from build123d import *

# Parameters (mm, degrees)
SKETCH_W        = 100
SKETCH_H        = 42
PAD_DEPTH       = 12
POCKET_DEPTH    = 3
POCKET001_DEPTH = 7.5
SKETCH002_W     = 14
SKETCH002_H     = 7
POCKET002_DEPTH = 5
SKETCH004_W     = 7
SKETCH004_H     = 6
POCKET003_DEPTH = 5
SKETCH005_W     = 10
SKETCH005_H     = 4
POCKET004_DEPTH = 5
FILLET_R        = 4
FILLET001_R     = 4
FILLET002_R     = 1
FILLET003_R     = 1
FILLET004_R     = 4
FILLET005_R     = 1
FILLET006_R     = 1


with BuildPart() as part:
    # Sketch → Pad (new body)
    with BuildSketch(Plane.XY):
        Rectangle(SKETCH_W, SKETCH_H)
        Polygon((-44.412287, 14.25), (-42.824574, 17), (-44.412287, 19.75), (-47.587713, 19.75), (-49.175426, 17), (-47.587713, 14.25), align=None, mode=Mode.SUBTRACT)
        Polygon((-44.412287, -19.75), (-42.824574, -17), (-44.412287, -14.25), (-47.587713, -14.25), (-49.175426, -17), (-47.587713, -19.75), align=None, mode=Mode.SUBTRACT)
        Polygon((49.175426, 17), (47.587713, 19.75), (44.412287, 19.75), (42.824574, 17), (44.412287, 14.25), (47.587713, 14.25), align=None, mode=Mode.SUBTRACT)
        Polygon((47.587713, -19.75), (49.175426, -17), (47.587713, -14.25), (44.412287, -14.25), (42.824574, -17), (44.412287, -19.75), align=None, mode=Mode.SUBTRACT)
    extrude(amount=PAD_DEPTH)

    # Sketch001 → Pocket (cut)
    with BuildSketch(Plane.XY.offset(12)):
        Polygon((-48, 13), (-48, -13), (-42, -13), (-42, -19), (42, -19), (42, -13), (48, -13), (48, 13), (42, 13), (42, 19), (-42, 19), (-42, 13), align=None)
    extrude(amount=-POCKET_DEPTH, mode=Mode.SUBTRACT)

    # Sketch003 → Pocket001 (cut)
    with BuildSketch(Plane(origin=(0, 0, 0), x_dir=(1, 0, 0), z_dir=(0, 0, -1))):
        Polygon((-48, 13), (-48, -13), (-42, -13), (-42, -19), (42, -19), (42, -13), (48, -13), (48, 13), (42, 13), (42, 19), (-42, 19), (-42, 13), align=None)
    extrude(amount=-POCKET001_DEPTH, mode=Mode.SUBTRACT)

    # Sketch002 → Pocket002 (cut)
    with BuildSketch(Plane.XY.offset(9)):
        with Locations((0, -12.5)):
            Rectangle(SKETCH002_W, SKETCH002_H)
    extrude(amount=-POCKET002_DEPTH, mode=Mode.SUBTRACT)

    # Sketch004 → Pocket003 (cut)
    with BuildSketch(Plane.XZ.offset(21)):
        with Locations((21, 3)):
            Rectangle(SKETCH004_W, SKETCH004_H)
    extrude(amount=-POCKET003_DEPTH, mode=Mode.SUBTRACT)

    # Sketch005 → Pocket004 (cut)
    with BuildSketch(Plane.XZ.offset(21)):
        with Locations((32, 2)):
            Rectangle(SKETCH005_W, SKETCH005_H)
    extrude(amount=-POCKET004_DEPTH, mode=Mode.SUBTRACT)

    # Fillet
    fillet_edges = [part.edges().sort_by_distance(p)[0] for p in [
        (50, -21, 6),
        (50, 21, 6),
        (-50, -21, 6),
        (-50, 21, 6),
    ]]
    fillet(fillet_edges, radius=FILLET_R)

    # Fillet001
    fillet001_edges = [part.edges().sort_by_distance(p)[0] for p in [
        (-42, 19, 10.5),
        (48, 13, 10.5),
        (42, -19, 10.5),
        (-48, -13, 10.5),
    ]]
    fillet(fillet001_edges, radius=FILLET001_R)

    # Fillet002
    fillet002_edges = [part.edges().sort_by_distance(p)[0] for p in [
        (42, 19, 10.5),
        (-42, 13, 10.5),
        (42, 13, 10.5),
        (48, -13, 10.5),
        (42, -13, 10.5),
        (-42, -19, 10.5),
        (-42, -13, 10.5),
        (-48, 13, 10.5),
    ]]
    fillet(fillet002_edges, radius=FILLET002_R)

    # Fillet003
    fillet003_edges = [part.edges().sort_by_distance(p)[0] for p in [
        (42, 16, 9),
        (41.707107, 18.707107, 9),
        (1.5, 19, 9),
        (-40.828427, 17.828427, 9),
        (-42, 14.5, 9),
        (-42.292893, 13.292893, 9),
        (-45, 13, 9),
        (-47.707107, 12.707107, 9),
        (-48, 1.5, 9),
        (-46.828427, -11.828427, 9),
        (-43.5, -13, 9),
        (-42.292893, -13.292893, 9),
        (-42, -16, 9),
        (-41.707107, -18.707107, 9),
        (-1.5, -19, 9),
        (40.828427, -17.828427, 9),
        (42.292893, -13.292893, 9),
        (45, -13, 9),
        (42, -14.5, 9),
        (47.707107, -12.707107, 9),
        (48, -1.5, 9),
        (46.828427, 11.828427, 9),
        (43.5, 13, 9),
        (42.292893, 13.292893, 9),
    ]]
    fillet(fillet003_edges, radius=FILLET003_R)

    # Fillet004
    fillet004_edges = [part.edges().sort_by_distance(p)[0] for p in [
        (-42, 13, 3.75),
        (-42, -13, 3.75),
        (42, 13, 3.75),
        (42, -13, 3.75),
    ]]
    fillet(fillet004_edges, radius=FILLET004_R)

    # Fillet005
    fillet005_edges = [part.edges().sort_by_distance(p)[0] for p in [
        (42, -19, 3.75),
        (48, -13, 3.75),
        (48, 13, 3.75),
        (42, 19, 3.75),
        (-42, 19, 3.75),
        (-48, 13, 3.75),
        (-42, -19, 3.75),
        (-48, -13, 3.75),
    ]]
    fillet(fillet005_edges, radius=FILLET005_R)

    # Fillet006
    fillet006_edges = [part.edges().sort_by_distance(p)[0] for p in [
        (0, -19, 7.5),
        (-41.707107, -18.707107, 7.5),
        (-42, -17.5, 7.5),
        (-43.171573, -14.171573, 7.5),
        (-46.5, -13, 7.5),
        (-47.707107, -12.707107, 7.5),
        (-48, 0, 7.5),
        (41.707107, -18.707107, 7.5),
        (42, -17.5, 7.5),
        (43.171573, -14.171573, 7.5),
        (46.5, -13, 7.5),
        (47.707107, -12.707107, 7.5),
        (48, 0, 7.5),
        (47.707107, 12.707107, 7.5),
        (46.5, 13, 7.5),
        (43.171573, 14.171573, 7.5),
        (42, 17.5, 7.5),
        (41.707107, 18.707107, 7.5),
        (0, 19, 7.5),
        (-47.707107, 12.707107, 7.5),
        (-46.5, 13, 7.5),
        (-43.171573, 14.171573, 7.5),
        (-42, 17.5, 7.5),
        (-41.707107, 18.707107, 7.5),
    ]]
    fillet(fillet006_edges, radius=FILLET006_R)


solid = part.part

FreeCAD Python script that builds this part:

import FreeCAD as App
import Part
import Sketcher
Q = App.Units.Quantity


def edges_at(feature, points):
    """Names of the edges that pass closest to the given points."""
    edges = feature.Shape.Edges
    near = lambda p: min(range(len(edges)), key=lambda i: edges[i].distToShape(Part.Vertex(*p))[0])
    return sorted({f"Edge{near(p) + 1}" for p in points})


def add_polygon(sketch, points):
    """Adds a closed chain of lines whose ends are joined by coincident constraints."""
    first, n = sketch.GeometryCount, len(points)
    for a, b in zip(points, points[1:] + points[:1]):
        sketch.addGeometry(Part.LineSegment(App.Vector(*a, 0), App.Vector(*b, 0)), False)
    for i in range(n):
        sketch.addConstraint(Sketcher.Constraint("Coincident", first + i, 2, first + (i + 1) % n, 1))

doc = App.newDocument("Part")
body = doc.addObject("PartDesign::Body", "Body")

# Sketch on XY plane
sketch1 = doc.addObject("Sketcher::SketchObject", "Sketch")
body.addObject(sketch1)
sketch1.AttachmentSupport = (doc.XY_Plane, [""])
sketch1.MapMode = "FlatFace"
add_polygon(sketch1, [(-50, 21), (-50, -21), (50, -21), (50, 21)])  # lines 0-3
add_polygon(sketch1, [(-42.8, -17), (-44.4, -19.8), (-47.6, -19.8), (-49.2, -17), (-47.6, -14.2), (-44.4, -14.2)])  # lines 4-9
add_polygon(sketch1, [(49.2, -17), (47.6, -19.8), (44.4, -19.8), (42.8, -17), (44.4, -14.2), (47.6, -14.2)])  # lines 10-15
add_polygon(sketch1, [(-42.8, 17), (-44.4, 14.2), (-47.6, 14.2), (-49.2, 17), (-47.6, 19.8), (-44.4, 19.8)])  # lines 16-21
add_polygon(sketch1, [(47.6, 19.8), (49.2, 17), (47.6, 14.2), (44.4, 14.2), (42.8, 17), (44.4, 19.8)])  # lines 22-27
sketch1.addConstraint([
    Sketcher.Constraint("Vertical", 0),
    Sketcher.Constraint("Horizontal", 1),
    Sketcher.Constraint("Vertical", 2),
    Sketcher.Constraint("Horizontal", 3),
    Sketcher.Constraint("Horizontal", 5),
    Sketcher.Constraint("Horizontal", 8),
    Sketcher.Constraint("Horizontal", 11),
    Sketcher.Constraint("Horizontal", 14),
    Sketcher.Constraint("Horizontal", 17),
    Sketcher.Constraint("Horizontal", 20),
    Sketcher.Constraint("Horizontal", 24),
    Sketcher.Constraint("Horizontal", 27),
    Sketcher.Constraint("Symmetric", 0, 2, 2, 2, -1, 1),
    Sketcher.Constraint("Symmetric", 13, 2, 16, 2, -1, 1),
    Sketcher.Constraint("Symmetric", 15, 2, 18, 2, -1, 1),
    Sketcher.Constraint("Symmetric", 10, 2, 19, 2, -1, 1),
    Sketcher.Constraint("Symmetric", 12, 2, 21, 2, -1, 1),
    Sketcher.Constraint("Symmetric", 6, 2, 22, 2, -1, 1),
    Sketcher.Constraint("Symmetric", 7, 2, 23, 2, -1, 1),
    Sketcher.Constraint("Symmetric", 9, 2, 25, 2, -1, 1),
    Sketcher.Constraint("Symmetric", 4, 2, 26, 2, -1, 1),
    Sketcher.Constraint("Symmetric", 5, 2, 10, 2, -2),
    Sketcher.Constraint("Symmetric", 9, 2, 12, 2, -2),
    Sketcher.Constraint("Symmetric", 8, 2, 13, 2, -2),
    Sketcher.Constraint("Symmetric", 6, 2, 15, 2, -2),
    Sketcher.Constraint("Parallel", 4, 7),
    Sketcher.Constraint("Parallel", 6, 9),
    Sketcher.Constraint("Parallel", 7, 10),
    Sketcher.Constraint("Parallel", 9, 12),
    Sketcher.Constraint("Parallel", 12, 15),
    Sketcher.Constraint("Parallel", 15, 18),
    Sketcher.Constraint("Parallel", 18, 21),
    Sketcher.Constraint("Parallel", 21, 22),
    Sketcher.Constraint("Parallel", 22, 25),
    Sketcher.Constraint("Horizontal", 6, 2, 9, 2),
    Sketcher.Constraint("Vertical", 5, 2, 7, 2),
    Sketcher.Constraint("DistanceX", 1, 1, 1, 2, Q("100 mm")),
    Sketcher.Constraint("DistanceY", 0, 2, 0, 1, Q("42 mm")),
    Sketcher.Constraint("Angle", 4, Q("-119.999996 deg")),
    Sketcher.Constraint("DistanceY", 6, 2, -1, 1, Q("17 mm")),
    Sketcher.Constraint("DistanceX", 4, 2, 10, 2, Q("92 mm")),
    Sketcher.Constraint("DistanceY", 5, 2, 7, 2, Q("5.5 mm")),
    Sketcher.Constraint("DistanceX", 5, 2, 5, 1, Q("3.175426 mm")),
])
pad1 = doc.addObject("PartDesign::Pad", "Pad")
body.addObject(pad1)
pad1.Profile = sketch1
pad1.Length = 12

# Sketch on XY plane
sketch2 = doc.addObject("Sketcher::SketchObject", "Sketch001")
body.addObject(sketch2)
sketch2.AttachmentSupport = (doc.XY_Plane, [""])
sketch2.MapMode = "FlatFace"
sketch2.AttachmentOffset = App.Placement(App.Vector(0, 0, 12), App.Rotation())
add_polygon(sketch2, [(-48, 13), (-48, -13), (-42, -13), (-42, -19), (42, -19), (42, -13), (48, -13), (48, 13), (42, 13), (42, 19), (-42, 19), (-42, 13)])  # lines 0-11
sketch2.addConstraint([
    Sketcher.Constraint("Vertical", 0),
    Sketcher.Constraint("Horizontal", 1),
    Sketcher.Constraint("Vertical", 2),
    Sketcher.Constraint("Horizontal", 3),
    Sketcher.Constraint("Vertical", 4),
    Sketcher.Constraint("Horizontal", 5),
    Sketcher.Constraint("Vertical", 6),
    Sketcher.Constraint("Horizontal", 7),
    Sketcher.Constraint("Vertical", 8),
    Sketcher.Constraint("Horizontal", 9),
    Sketcher.Constraint("Vertical", 10),
    Sketcher.Constraint("Horizontal", 11),
    Sketcher.Constraint("Symmetric", 0, 2, 6, 2, -1, 1),
    Sketcher.Constraint("Symmetric", 2, 2, 8, 2, -1, 1),
    Sketcher.Constraint("Symmetric", 4, 2, 10, 2, -1, 1),
    Sketcher.Constraint("Symmetric", 1, 2, 4, 2, -2),
    Sketcher.Constraint("Equal", 11, 2),
    Sketcher.Constraint("DistanceX", 1, 1, 1, 2, Q("6 mm")),
    Sketcher.Constraint("DistanceX", 3, 1, 3, 2, Q("84 mm")),
    Sketcher.Constraint("DistanceY", 0, 2, 0, 1, Q("26 mm")),
])
pocket1 = doc.addObject("PartDesign::Pocket", "Pocket")
body.addObject(pocket1)
pocket1.Profile = sketch2
pocket1.Length = 3

# Sketch on XY plane
sketch3 = doc.addObject("Sketcher::SketchObject", "Sketch002")
body.addObject(sketch3)
sketch3.AttachmentSupport = (doc.XY_Plane, [""])
sketch3.MapMode = "FlatFace"
add_polygon(sketch3, [(-48, -13), (-48, 13), (-42, 13), (-42, 19), (42, 19), (42, 13), (48, 13), (48, -13), (42, -13), (42, -19), (-42, -19), (-42, -13)])  # lines 0-11
sketch3.addConstraint([
    Sketcher.Constraint("Vertical", 0),
    Sketcher.Constraint("Horizontal", 1),
    Sketcher.Constraint("Vertical", 2),
    Sketcher.Constraint("Horizontal", 3),
    Sketcher.Constraint("Vertical", 4),
    Sketcher.Constraint("Horizontal", 5),
    Sketcher.Constraint("Vertical", 6),
    Sketcher.Constraint("Horizontal", 7),
    Sketcher.Constraint("Vertical", 8),
    Sketcher.Constraint("Horizontal", 9),
    Sketcher.Constraint("Vertical", 10),
    Sketcher.Constraint("Horizontal", 11),
    Sketcher.Constraint("Symmetric", 0, 2, 6, 2, -1, 1),
    Sketcher.Constraint("Symmetric", 2, 2, 8, 2, -1, 1),
    Sketcher.Constraint("Symmetric", 4, 2, 10, 2, -1, 1),
    Sketcher.Constraint("Symmetric", 1, 2, 4, 2, -2),
    Sketcher.Constraint("Equal", 11, 2),
    Sketcher.Constraint("DistanceX", 1, 1, 1, 2, Q("6 mm")),
    Sketcher.Constraint("DistanceX", 3, 1, 3, 2, Q("84 mm")),
    Sketcher.Constraint("DistanceY", 0, 1, 0, 2, Q("26 mm")),
])
pocket2 = doc.addObject("PartDesign::Pocket", "Pocket001")
body.addObject(pocket2)
pocket2.Profile = sketch3
pocket2.Length = 7.5
pocket2.Reversed = True

# Sketch on XY plane
sketch4 = doc.addObject("Sketcher::SketchObject", "Sketch003")
body.addObject(sketch4)
sketch4.AttachmentSupport = (doc.XY_Plane, [""])
sketch4.MapMode = "FlatFace"
sketch4.AttachmentOffset = App.Placement(App.Vector(0, 0, 9), App.Rotation())
add_polygon(sketch4, [(-7, -9), (-7, -16), (7, -16), (7, -9)])  # lines 0-3
sketch4.addConstraint([
    Sketcher.Constraint("Vertical", 0),
    Sketcher.Constraint("Horizontal", 1),
    Sketcher.Constraint("Vertical", 2),
    Sketcher.Constraint("Horizontal", 3),
    Sketcher.Constraint("DistanceX", 1, 1, 1, 2, Q("14 mm")),
    Sketcher.Constraint("DistanceY", 0, 2, 0, 1, Q("7 mm")),
    Sketcher.Constraint("DistanceX", 0, 2, -1, 1, Q("7 mm")),
    Sketcher.Constraint("DistanceY", 0, 2, -1, 1, Q("16 mm")),
])
pocket3 = doc.addObject("PartDesign::Pocket", "Pocket002")
body.addObject(pocket3)
pocket3.Profile = sketch4
pocket3.Length = 5

# Sketch on XZ plane
sketch5 = doc.addObject("Sketcher::SketchObject", "Sketch004")
body.addObject(sketch5)
sketch5.AttachmentSupport = (doc.XZ_Plane, [""])
sketch5.MapMode = "FlatFace"
sketch5.AttachmentOffset = App.Placement(App.Vector(0, 0, 21), App.Rotation())
add_polygon(sketch5, [(18, 6), (18, 0), (24, 0), (24, 6)])  # lines 0-3
sketch5.addConstraint([
    Sketcher.Constraint("Vertical", 0),
    Sketcher.Constraint("Horizontal", 1),
    Sketcher.Constraint("Vertical", 2),
    Sketcher.Constraint("Horizontal", 3),
    Sketcher.Constraint("PointOnObject", 0, 2, -1),
    Sketcher.Constraint("DistanceX", 1, 1, 1, 2, Q("7 mm")),
    Sketcher.Constraint("DistanceY", 0, 2, 0, 1, Q("6 mm")),
    Sketcher.Constraint("DistanceX", -1, 1, 0, 2, Q("17.5 mm")),
])
pocket4 = doc.addObject("PartDesign::Pocket", "Pocket003")
body.addObject(pocket4)
pocket4.Profile = sketch5
pocket4.Length = 5

# Sketch on XZ plane
sketch6 = doc.addObject("Sketcher::SketchObject", "Sketch005")
body.addObject(sketch6)
sketch6.AttachmentSupport = (doc.XZ_Plane, [""])
sketch6.MapMode = "FlatFace"
sketch6.AttachmentOffset = App.Placement(App.Vector(0, 0, 21), App.Rotation())
add_polygon(sketch6, [(27, 4), (27, 0), (37, 0), (37, 4)])  # lines 0-3
sketch6.addConstraint([
    Sketcher.Constraint("Vertical", 0),
    Sketcher.Constraint("Horizontal", 1),
    Sketcher.Constraint("Vertical", 2),
    Sketcher.Constraint("Horizontal", 3),
    Sketcher.Constraint("PointOnObject", 0, 2, -1),
    Sketcher.Constraint("DistanceX", 1, 1, 1, 2, Q("10 mm")),
    Sketcher.Constraint("DistanceY", 0, 2, 0, 1, Q("4 mm")),
    Sketcher.Constraint("DistanceX", -1, 1, 0, 2, Q("27 mm")),
])
pocket5 = doc.addObject("PartDesign::Pocket", "Pocket004")
body.addObject(pocket5)
pocket5.Profile = sketch6
pocket5.Length = 5
doc.recompute()

fillet = doc.addObject("PartDesign::Fillet", "Fillet")
body.addObject(fillet)
fillet.Base = (pocket5, edges_at(pocket5, [
    (50, -21, 6),
    (50, 21, 6),
    (-50, -21, 6),
    (-50, 21, 6),
]))
fillet.Radius = 4
doc.recompute()

fillet2 = doc.addObject("PartDesign::Fillet", "Fillet001")
body.addObject(fillet2)
fillet2.Base = (fillet, edges_at(fillet, [
    (-42, 19, 10.5),
    (48, 13, 10.5),
    (42, -19, 10.5),
    (-48, -13, 10.5),
]))
fillet2.Radius = 4
doc.recompute()

fillet3 = doc.addObject("PartDesign::Fillet", "Fillet002")
body.addObject(fillet3)
fillet3.Base = (fillet2, edges_at(fillet2, [
    (42, 19, 10.5),
    (-42, 13, 10.5),
    (42, 13, 10.5),
    (48, -13, 10.5),
    (42, -13, 10.5),
    (-42, -19, 10.5),
    (-42, -13, 10.5),
    (-48, 13, 10.5),
]))
fillet3.Radius = 1
doc.recompute()

fillet4 = doc.addObject("PartDesign::Fillet", "Fillet003")
body.addObject(fillet4)
fillet4.Base = (fillet3, edges_at(fillet3, [
    (42, 16, 9),
    (41.707, 18.707, 9),
    (1.5, 19, 9),
    (-40.828, 17.828, 9),
    (-42, 14.5, 9),
    (-42.293, 13.293, 9),
    (-45, 13, 9),
    (-47.707, 12.707, 9),
    (-48, 1.5, 9),
    (-46.828, -11.828, 9),
    (-43.5, -13, 9),
    (-42.293, -13.293, 9),
    (-42, -16, 9),
    (-41.707, -18.707, 9),
    (-1.5, -19, 9),
    (40.828, -17.828, 9),
    (42.293, -13.293, 9),
    (45, -13, 9),
    (42, -14.5, 9),
    (47.707, -12.707, 9),
    (48, -1.5, 9),
    (46.828, 11.828, 9),
    (43.5, 13, 9),
    (42.293, 13.293, 9),
]))
fillet4.Radius = 1
doc.recompute()

fillet5 = doc.addObject("PartDesign::Fillet", "Fillet004")
body.addObject(fillet5)
fillet5.Base = (fillet4, edges_at(fillet4, [
    (-42, 13, 3.75),
    (-42, -13, 3.75),
    (42, 13, 3.75),
    (42, -13, 3.75),
]))
fillet5.Radius = 4
doc.recompute()

fillet6 = doc.addObject("PartDesign::Fillet", "Fillet005")
body.addObject(fillet6)
fillet6.Base = (fillet5, edges_at(fillet5, [
    (42, -19, 3.75),
    (48, -13, 3.75),
    (48, 13, 3.75),
    (42, 19, 3.75),
    (-42, 19, 3.75),
    (-48, 13, 3.75),
    (-42, -19, 3.75),
    (-48, -13, 3.75),
]))
fillet6.Radius = 1
doc.recompute()

fillet7 = doc.addObject("PartDesign::Fillet", "Fillet006")
body.addObject(fillet7)
fillet7.Base = (fillet6, edges_at(fillet6, [
    (0, -19, 7.5),
    (-41.707, -18.707, 7.5),
    (-42, -17.5, 7.5),
    (-43.172, -14.172, 7.5),
    (-46.5, -13, 7.5),
    (-47.707, -12.707, 7.5),
    (-48, 0, 7.5),
    (41.707, -18.707, 7.5),
    (42, -17.5, 7.5),
    (43.172, -14.172, 7.5),
    (46.5, -13, 7.5),
    (47.707, -12.707, 7.5),
    (48, 0, 7.5),
    (47.707, 12.707, 7.5),
    (46.5, 13, 7.5),
    (43.172, 14.172, 7.5),
    (42, 17.5, 7.5),
    (41.707, 18.707, 7.5),
    (0, 19, 7.5),
    (-47.707, 12.707, 7.5),
    (-46.5, 13, 7.5),
    (-43.172, 14.172, 7.5),
    (-42, 17.5, 7.5),
    (-41.707, 18.707, 7.5),
]))
fillet7.Radius = 1

doc.recompute()
